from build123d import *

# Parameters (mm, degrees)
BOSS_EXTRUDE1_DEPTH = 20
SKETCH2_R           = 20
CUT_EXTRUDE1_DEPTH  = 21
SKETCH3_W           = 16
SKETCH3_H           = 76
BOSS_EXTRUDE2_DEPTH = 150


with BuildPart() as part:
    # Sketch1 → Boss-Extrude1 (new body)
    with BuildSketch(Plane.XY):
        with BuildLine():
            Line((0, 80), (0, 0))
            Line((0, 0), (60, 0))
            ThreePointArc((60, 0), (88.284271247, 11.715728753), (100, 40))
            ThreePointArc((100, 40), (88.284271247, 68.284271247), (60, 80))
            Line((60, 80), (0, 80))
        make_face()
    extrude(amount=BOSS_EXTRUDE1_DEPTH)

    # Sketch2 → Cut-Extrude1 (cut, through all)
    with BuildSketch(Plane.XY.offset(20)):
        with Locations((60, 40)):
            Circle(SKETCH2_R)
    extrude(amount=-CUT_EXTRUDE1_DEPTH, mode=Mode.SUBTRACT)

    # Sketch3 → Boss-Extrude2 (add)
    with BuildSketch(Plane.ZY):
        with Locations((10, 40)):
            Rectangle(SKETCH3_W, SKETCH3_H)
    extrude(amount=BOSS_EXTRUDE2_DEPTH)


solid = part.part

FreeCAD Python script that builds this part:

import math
import FreeCAD as App
import Part
import Sketcher
from FreeCAD import Vector


def add_polygon(sketch, points):
    """Adds a closed chain of lines whose ends are joined by coincident constraints."""
    first, n = sketch.GeometryCount, len(points)
    for a, b in zip(points, points[1:] + points[:1]):
        sketch.addGeometry(Part.LineSegment(App.Vector(*a, 0), App.Vector(*b, 0)), False)
    for i in range(n):
        sketch.addConstraint(Sketcher.Constraint("Coincident", first + i, 2, first + (i + 1) % n, 1))

doc = App.newDocument("Part")
body = doc.addObject("PartDesign::Body", "Body")

# Sketch on XY plane
sketch1 = body.newObject("Sketcher::SketchObject", "Sketch")
sketch1.AttachmentSupport = (doc.getObject("XY_Plane"), [""])
sketch1.MapMode = "FlatFace"
sketch1.addGeometry([
    Part.LineSegment(Vector(0, 80, 0), Vector(0, 0, 0)),  # 0
    Part.LineSegment(Vector(0, 0, 0), Vector(60, 0, 0)),  # 1
    Part.ArcOfCircle(Part.Circle(Vector(60, 40, 0), Vector(0, 0, 1), 40), math.radians(-90), math.radians(0)),  # 2
    Part.ArcOfCircle(Part.Circle(Vector(60, 40, 0), Vector(0, 0, 1), 40), math.radians(0), math.radians(90)),  # 3
    Part.LineSegment(Vector(60, 80, 0), Vector(0, 80, 0)),  # 4
], False)
sketch1.addConstraint([
    Sketcher.Constraint("Coincident", 0, 2, 1, 1),
    Sketcher.Constraint("Tangent", 1, 2, 2, 1),
    Sketcher.Constraint("Tangent", 2, 2, 3, 1),
    Sketcher.Constraint("Tangent", 3, 2, 4, 1),
    Sketcher.Constraint("Coincident", 4, 2, 0, 1),
    Sketcher.Constraint("Vertical", 0),
    Sketcher.Constraint("Horizontal", 1),
    Sketcher.Constraint("Horizontal", 4),
    Sketcher.Constraint("Coincident", 0, 2, -1, 1),
    Sketcher.Constraint("Equal", 2, 3),
    Sketcher.Constraint("Horizontal", 3, 3, 2, 2),
    Sketcher.Constraint("Radius", 2, 40.0),
    Sketcher.Constraint("DistanceX", 1, 1, 1, 2, 60.0),
])
pad1 = body.newObject("PartDesign::Pad", "Pad")
pad1.Profile = sketch1
pad1.Length = 20

# Sketch on XY plane
sketch2 = body.newObject("Sketcher::SketchObject", "Sketch001")
sketch2.AttachmentSupport = (doc.getObject("XY_Plane"), [""])
sketch2.MapMode = "FlatFace"
sketch2.AttachmentOffset = App.Placement(Vector(0, 0, 20), App.Rotation())
sketch2.addGeometry(Part.Circle(Vector(60, 40, 0), Vector(0, 0, 1), 20), False)
sketch2.addConstraint([
    Sketcher.Constraint("Diameter", 0, 40.0),
    Sketcher.Constraint("DistanceX", -1, 1, 0, 3, 60.0),
    Sketcher.Constraint("DistanceY", -1, 1, 0, 3, 40.0),
])
pocket1 = body.newObject("PartDesign::Pocket", "Pocket")
pocket1.Profile = sketch2
pocket1.Type = "ThroughAll"

# Sketch on YZ plane
sketch3 = body.newObject("Sketcher::SketchObject", "Sketch002")
sketch3.AttachmentSupport = (doc.getObject("YZ_Plane"), [""])
sketch3.MapMode = "FlatFace"
add_polygon(sketch3, [(78, 2), (2, 2), (2, 18), (78, 18)])  # lines 0-3
sketch3.addConstraint([
    Sketcher.Constraint("Horizontal", 0),
    Sketcher.Constraint("Vertical", 1),
    Sketcher.Constraint("Horizontal", 2),
    Sketcher.Constraint("Vertical", 3),
    Sketcher.Constraint("DistanceX", 0, 2, 0, 1, 76.0),
    Sketcher.Constraint("DistanceY", 1, 1, 1, 2, 16.0),
    Sketcher.Constraint("DistanceX", -1, 1, 0, 2, 2.0),
    Sketcher.Constraint("DistanceY", -1, 1, 0, 2, 2.0),
])
pad2 = body.newObject("PartDesign::Pad", "Pad001")
pad2.Profile = sketch3
pad2.Length = 150
pad2.Reversed = True

doc.recompute()
